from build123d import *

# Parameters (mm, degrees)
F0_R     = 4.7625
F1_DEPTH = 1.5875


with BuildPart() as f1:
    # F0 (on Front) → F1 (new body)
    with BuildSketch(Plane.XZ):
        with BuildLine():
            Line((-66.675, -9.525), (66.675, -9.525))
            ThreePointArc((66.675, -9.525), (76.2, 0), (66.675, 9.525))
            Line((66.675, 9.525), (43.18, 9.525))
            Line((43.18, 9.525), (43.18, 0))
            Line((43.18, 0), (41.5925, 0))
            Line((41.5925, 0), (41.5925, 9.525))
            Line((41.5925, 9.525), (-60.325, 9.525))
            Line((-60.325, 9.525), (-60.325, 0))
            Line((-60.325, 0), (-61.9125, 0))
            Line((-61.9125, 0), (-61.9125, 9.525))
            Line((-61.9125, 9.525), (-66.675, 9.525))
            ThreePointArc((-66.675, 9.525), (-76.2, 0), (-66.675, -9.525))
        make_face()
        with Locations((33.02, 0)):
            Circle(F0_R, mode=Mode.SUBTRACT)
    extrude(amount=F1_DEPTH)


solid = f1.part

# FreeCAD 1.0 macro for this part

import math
import FreeCAD as App
import Part
import Sketcher

V = App.Vector
Q = App.Units.Quantity

doc = App.newDocument("Part")
body = doc.addObject("PartDesign::Body", "Body")

# Sketch on XZ plane
sketch1 = body.newObject("Sketcher::SketchObject", "Sketch")
sketch1.AttachmentSupport = (doc.getObject("XZ_Plane"), [""])
sketch1.MapMode = "FlatFace"
sketch1.addGeometry([
    Part.LineSegment(V(-66.675, -9.525, 0), V(66.675, -9.525, 0)),  # 0
    Part.ArcOfCircle(Part.Circle(V(66.675, 0, 0), V(0, 0, 1), 9.525), math.radians(-90), math.radians(90)),  # 1
    Part.LineSegment(V(66.675, 9.525, 0), V(43.18, 9.525, 0)),  # 2
    Part.LineSegment(V(43.18, 9.525, 0), V(43.18, 0, 0)),  # 3
    Part.LineSegment(V(43.18, 0, 0), V(41.5925, 0, 0)),  # 4
    Part.LineSegment(V(41.5925, 0, 0), V(41.5925, 9.525, 0)),  # 5
    Part.LineSegment(V(41.5925, 9.525, 0), V(-60.325, 9.525, 0)),  # 6
    Part.LineSegment(V(-60.325, 9.525, 0), V(-60.325, 0, 0)),  # 7
    Part.LineSegment(V(-60.325, 0, 0), V(-61.9125, 0, 0)),  # 8
    Part.LineSegment(V(-61.9125, 0, 0), V(-61.9125, 9.525, 0)),  # 9
    Part.LineSegment(V(-61.9125, 9.525, 0), V(-66.675, 9.525, 0)),  # 10
    Part.ArcOfCircle(Part.Circle(V(-66.675, 0, 0), V(0, 0, 1), 9.525), math.radians(90), math.radians(270)),  # 11
    Part.Circle(V(33.02, 0, 0), V(0, 0, 1), 4.7625),  # 12
], False)
sketch1.addConstraint([
    Sketcher.Constraint("Tangent", 0, 2, 1, 1),
    Sketcher.Constraint("Tangent", 1, 2, 2, 1),
    Sketcher.Constraint("Coincident", 2, 2, 3, 1),
    Sketcher.Constraint("Coincident", 3, 2, 4, 1),
    Sketcher.Constraint("Coincident", 4, 2, 5, 1),
    Sketcher.Constraint("Coincident", 5, 2, 6, 1),
    Sketcher.Constraint("Coincident", 6, 2, 7, 1),
    Sketcher.Constraint("Coincident", 7, 2, 8, 1),
    Sketcher.Constraint("Coincident", 8, 2, 9, 1),
    Sketcher.Constraint("Coincident", 9, 2, 10, 1),
    Sketcher.Constraint("Tangent", 10, 2, 11, 1),
    Sketcher.Constraint("Tangent", 11, 2, 0, 1),
    Sketcher.Constraint("Horizontal", 0),
    Sketcher.Constraint("Horizontal", 2),
    Sketcher.Constraint("Vertical", 3),
    Sketcher.Constraint("Horizontal", 4),
    Sketcher.Constraint("Vertical", 5),
    Sketcher.Constraint("Horizontal", 6),
    Sketcher.Constraint("Vertical", 7),
    Sketcher.Constraint("Horizontal", 8),
    Sketcher.Constraint("Vertical", 9),
    Sketcher.Constraint("Horizontal", 10),
    Sketcher.Constraint("Equal", 1, 11),
    Sketcher.Constraint("Symmetric", 1, 3, 11, 3, -1, 1),
    Sketcher.Constraint("PointOnObject", 12, 3, -1),
    Sketcher.Constraint("PointOnObject", 3, 2, -1),
    Sketcher.Constraint("PointOnObject", 7, 2, -1),
    Sketcher.Constraint("Horizontal", 2, 2, 5, 2),
    Sketcher.Constraint("Equal", 4, 8),
    Sketcher.Constraint("Diameter", 12, Q("0.375 in")),
    Sketcher.Constraint("Radius", 1, Q("0.375 in")),
    Sketcher.Constraint("DistanceX", 0, 1, 0, 2, Q("5.25 in")),
    Sketcher.Constraint("DistanceX", -1, 1, 12, 3, Q("1.3 in")),
    Sketcher.Constraint("DistanceX", -1, 1, 2, 2, Q("1.7 in")),
    Sketcher.Constraint("DistanceX", 4, 2, 4, 1, Q("0.0625 in")),
    Sketcher.Constraint("DistanceX", 10, 2, 10, 1, Q("0.1875 in")),
])
pad1 = body.newObject("PartDesign::Pad", "Pad")
pad1.Profile = sketch1
pad1.Length = Q("0.0625 in")

doc.recompute()
